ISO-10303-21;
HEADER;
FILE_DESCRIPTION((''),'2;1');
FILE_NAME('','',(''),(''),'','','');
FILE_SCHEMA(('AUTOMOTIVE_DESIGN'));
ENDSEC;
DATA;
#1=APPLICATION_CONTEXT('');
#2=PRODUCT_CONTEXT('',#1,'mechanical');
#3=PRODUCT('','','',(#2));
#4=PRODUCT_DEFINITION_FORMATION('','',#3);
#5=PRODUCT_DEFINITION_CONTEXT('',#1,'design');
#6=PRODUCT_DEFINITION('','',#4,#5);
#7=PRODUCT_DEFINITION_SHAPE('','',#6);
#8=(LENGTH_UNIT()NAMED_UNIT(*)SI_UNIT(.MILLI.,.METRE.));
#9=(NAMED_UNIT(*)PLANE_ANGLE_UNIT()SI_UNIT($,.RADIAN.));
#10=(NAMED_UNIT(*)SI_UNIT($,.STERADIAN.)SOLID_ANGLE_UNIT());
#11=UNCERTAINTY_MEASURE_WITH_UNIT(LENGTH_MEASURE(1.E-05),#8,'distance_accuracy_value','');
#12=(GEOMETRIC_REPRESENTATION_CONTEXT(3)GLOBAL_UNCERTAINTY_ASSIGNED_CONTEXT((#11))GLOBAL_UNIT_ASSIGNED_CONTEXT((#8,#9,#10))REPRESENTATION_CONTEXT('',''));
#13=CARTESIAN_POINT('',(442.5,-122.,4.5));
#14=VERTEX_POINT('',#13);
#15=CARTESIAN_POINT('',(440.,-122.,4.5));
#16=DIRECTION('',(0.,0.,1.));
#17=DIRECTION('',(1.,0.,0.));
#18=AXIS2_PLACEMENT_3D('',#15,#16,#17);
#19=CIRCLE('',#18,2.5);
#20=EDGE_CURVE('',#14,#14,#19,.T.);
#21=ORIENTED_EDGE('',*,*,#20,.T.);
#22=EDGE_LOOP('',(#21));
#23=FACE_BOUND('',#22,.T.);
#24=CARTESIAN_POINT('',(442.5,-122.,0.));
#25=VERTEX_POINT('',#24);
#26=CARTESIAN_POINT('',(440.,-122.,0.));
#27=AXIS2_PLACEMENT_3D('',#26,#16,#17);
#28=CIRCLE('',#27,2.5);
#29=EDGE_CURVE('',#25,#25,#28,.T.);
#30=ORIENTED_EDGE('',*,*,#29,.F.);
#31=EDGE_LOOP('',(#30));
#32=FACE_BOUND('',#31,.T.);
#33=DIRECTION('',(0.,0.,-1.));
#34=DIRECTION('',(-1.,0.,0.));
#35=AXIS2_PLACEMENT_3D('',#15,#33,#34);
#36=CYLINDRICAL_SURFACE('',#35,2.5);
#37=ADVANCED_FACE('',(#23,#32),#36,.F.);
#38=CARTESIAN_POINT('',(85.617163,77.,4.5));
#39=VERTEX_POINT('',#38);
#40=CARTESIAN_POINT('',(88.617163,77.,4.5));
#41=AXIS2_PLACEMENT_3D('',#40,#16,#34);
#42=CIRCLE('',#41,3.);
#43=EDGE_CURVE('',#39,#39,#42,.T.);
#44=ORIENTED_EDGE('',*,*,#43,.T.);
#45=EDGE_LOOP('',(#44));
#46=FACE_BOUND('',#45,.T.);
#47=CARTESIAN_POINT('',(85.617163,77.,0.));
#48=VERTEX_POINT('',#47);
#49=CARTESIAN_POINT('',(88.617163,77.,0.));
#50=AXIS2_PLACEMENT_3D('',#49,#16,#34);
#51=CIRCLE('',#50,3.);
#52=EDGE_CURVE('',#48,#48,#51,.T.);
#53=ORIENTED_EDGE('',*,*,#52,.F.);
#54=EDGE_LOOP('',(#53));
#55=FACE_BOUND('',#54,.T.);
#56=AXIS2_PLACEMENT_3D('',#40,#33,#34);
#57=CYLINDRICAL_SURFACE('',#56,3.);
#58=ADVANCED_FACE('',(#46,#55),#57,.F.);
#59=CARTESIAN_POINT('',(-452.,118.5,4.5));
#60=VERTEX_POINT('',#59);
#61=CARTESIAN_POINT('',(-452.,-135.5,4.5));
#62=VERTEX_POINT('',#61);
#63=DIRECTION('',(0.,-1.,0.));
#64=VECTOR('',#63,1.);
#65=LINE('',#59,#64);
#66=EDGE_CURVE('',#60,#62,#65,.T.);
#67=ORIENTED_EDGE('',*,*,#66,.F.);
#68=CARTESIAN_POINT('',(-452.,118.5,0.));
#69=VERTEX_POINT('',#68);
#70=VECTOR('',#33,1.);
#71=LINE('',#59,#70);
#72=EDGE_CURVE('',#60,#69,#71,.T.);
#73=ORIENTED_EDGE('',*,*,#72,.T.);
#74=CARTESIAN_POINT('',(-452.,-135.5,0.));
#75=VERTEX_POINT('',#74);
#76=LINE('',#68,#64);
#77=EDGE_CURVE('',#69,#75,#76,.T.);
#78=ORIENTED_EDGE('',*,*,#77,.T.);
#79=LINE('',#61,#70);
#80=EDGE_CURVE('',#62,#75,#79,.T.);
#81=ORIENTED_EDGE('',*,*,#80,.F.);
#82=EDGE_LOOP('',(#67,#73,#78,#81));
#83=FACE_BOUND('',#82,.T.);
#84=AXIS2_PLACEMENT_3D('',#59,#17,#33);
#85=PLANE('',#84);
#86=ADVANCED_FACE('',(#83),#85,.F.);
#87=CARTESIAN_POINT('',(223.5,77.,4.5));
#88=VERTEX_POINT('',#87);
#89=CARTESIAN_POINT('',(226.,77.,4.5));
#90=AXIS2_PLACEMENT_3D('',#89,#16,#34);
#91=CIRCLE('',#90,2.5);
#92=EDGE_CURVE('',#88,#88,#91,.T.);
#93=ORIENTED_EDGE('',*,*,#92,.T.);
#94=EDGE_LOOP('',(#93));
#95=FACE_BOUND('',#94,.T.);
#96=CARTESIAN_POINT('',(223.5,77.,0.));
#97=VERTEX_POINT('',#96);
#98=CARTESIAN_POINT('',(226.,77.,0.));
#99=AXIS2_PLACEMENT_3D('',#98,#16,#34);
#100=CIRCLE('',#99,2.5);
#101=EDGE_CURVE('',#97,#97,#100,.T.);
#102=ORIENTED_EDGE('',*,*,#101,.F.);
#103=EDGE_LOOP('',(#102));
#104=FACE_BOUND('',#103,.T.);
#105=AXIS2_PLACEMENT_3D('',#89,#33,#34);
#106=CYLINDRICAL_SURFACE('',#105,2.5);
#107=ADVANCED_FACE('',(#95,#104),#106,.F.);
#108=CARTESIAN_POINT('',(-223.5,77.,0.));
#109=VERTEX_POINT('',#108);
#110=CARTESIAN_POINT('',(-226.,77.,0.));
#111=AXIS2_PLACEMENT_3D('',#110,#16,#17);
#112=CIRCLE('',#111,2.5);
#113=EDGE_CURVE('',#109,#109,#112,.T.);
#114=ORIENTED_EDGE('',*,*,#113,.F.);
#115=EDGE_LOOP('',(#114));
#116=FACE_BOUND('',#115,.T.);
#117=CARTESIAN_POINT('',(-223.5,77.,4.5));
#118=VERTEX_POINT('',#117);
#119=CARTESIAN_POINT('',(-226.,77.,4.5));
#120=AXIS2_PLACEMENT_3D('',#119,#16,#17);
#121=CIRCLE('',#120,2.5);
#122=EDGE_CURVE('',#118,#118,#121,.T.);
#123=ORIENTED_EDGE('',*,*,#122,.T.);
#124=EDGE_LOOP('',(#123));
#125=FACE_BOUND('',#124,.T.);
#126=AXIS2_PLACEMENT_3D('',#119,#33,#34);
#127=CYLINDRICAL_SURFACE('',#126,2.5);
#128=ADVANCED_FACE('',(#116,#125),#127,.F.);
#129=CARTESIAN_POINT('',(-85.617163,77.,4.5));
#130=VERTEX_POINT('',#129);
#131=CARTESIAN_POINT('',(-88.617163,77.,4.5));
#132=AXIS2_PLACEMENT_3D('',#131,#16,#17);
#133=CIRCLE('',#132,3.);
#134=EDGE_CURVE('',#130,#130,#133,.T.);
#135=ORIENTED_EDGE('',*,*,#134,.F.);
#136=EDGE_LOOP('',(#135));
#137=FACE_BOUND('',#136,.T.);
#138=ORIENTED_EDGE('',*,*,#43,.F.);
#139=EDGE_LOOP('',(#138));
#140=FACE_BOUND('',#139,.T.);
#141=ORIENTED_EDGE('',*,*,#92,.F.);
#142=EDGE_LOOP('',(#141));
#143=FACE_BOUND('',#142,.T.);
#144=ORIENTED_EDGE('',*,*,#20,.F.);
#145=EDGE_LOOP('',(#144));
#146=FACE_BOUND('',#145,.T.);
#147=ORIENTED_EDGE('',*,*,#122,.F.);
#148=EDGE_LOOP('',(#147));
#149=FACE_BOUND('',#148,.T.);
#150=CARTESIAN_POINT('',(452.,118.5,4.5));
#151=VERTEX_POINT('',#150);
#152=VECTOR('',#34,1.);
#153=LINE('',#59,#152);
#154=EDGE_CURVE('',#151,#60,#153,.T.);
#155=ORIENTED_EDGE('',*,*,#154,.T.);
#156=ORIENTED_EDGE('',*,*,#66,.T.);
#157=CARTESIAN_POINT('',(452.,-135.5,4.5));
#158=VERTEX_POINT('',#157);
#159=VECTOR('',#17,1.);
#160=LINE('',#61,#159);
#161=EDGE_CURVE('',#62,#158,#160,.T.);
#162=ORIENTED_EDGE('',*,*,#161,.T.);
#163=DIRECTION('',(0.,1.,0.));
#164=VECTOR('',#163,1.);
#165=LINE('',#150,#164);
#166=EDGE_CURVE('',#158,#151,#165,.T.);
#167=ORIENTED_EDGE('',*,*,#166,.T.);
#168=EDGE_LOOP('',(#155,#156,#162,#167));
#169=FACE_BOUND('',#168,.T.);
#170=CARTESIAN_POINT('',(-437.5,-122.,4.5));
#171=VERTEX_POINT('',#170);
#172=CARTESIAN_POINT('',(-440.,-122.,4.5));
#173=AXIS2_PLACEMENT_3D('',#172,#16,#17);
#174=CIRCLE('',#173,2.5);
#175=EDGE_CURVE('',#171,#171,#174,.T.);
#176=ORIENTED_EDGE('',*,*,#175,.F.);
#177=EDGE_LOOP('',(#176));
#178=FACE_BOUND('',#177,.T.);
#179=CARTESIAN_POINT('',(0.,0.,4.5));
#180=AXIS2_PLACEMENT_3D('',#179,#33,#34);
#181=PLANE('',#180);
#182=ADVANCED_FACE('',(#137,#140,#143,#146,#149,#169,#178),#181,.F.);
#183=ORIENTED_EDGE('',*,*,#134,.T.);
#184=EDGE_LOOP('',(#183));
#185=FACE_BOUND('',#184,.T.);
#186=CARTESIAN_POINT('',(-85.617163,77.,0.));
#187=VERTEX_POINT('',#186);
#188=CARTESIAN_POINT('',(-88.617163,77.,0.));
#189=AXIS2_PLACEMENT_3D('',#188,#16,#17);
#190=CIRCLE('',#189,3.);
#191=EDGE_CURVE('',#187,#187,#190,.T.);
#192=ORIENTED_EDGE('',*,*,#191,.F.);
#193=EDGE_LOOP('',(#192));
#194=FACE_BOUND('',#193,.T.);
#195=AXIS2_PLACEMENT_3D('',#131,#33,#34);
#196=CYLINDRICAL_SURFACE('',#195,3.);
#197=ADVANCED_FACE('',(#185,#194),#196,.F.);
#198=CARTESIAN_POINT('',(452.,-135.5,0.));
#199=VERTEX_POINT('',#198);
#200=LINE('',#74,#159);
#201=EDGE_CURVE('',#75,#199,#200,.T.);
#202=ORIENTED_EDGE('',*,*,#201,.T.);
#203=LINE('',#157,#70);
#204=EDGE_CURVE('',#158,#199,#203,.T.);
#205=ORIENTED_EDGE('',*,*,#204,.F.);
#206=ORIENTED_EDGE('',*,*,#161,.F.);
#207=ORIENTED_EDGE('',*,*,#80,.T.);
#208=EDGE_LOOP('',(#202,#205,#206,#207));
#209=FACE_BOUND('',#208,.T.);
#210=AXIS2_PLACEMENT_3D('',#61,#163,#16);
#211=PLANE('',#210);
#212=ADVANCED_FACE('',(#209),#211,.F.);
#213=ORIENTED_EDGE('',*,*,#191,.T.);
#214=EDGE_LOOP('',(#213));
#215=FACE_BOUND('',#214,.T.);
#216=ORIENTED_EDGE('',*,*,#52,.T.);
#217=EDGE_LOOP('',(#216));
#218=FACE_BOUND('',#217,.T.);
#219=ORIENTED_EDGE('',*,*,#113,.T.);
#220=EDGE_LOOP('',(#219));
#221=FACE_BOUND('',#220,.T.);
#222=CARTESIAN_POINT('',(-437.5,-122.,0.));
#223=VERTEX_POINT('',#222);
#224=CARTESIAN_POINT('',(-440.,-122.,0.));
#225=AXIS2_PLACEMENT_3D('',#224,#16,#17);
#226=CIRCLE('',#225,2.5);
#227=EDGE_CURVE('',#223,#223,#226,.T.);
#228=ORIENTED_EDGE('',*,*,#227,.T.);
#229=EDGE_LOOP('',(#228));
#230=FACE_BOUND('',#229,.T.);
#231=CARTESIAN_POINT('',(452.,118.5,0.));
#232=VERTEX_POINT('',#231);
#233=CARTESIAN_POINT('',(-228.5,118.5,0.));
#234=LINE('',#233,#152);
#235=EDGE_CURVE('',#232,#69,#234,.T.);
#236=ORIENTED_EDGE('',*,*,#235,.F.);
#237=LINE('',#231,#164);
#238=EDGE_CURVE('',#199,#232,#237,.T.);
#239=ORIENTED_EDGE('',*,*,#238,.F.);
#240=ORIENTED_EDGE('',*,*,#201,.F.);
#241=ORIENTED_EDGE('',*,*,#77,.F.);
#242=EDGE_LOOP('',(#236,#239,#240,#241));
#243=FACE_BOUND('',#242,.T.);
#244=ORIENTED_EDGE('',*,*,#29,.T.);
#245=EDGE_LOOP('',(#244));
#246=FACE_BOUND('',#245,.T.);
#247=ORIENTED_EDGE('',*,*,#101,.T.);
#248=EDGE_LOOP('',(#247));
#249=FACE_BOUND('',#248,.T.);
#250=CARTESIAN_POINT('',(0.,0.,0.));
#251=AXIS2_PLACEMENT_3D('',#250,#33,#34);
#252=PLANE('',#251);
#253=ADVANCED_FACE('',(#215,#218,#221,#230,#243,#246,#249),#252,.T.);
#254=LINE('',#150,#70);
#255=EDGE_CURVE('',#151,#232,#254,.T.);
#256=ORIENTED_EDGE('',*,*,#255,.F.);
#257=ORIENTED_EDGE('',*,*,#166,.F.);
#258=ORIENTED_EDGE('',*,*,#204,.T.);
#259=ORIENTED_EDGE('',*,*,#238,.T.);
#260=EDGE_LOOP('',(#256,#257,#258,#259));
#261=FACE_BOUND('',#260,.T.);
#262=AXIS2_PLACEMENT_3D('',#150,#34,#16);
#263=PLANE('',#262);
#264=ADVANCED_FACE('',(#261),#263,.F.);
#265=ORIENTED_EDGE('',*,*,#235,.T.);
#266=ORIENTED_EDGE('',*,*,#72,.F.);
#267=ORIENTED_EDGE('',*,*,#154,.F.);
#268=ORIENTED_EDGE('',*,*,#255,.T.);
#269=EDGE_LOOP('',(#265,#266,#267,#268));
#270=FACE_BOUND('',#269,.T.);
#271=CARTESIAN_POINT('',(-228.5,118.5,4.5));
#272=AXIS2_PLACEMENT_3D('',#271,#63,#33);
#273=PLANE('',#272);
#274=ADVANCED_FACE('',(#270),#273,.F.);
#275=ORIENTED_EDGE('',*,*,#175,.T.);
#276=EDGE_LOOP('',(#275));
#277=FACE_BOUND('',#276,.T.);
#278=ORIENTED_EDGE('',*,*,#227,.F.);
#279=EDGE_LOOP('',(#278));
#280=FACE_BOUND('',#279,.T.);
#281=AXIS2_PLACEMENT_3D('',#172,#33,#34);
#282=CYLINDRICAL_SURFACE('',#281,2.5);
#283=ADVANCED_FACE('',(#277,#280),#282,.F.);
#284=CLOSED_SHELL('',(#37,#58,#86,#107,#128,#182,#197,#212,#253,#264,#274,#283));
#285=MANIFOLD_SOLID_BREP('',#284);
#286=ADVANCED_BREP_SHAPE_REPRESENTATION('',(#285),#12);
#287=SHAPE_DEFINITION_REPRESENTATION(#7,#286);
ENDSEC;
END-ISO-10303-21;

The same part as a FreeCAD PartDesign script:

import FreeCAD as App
import Part
import Sketcher

V = App.Vector
Q = App.Units.Quantity


def add_polygon(sketch, points):
    """Adds a closed chain of lines whose ends are joined by coincident constraints."""
    first, n = sketch.GeometryCount, len(points)
    for a, b in zip(points, points[1:] + points[:1]):
        sketch.addGeometry(Part.LineSegment(App.Vector(*a, 0), App.Vector(*b, 0)), False)
    for i in range(n):
        sketch.addConstraint(Sketcher.Constraint("Coincident", first + i, 2, first + (i + 1) % n, 1))

doc = App.newDocument("Part")
body = doc.addObject("PartDesign::Body", "Body")

sketch1 = body.newObject("Sketcher::SketchObject", "Sketch")
sketch1.AttachmentSupport = (doc.getObject("XY_Plane"), [""])
sketch1.MapMode = "FlatFace"
add_polygon(sketch1, [(-452, 118.5), (-452, -135.5), (452, -135.5), (452, 118.5)])
sketch1.addGeometry(Part.Circle(V(-440, -122, 0), V(0, 0, 1), 2.5), False)
sketch1.addGeometry(Part.Circle(V(440, -122, 0), V(0, 0, 1), 2.5), False)
sketch1.addGeometry(Part.Circle(V(-226, 77, 0), V(0, 0, 1), 2.5), False)
sketch1.addGeometry(Part.Circle(V(-88.6, 77, 0), V(0, 0, 1), 3), False)
sketch1.addGeometry(Part.Circle(V(88.6, 77, 0), V(0, 0, 1), 3), False)
sketch1.addGeometry(Part.Circle(V(226, 77, 0), V(0, 0, 1), 2.5), False)
sketch1.addConstraint([
    Sketcher.Constraint("Vertical", 0),
    Sketcher.Constraint("Horizontal", 1),
    Sketcher.Constraint("Vertical", 2),
    Sketcher.Constraint("Horizontal", 3),
    Sketcher.Constraint("Equal", 4, 5),
    Sketcher.Constraint("Equal", 5, 6),
    Sketcher.Constraint("Equal", 7, 8),
    Sketcher.Constraint("Equal", 6, 9),
    Sketcher.Constraint("Symmetric", 4, 3, 5, 3, -2),
    Sketcher.Constraint("Symmetric", 7, 3, 8, 3, -2),
    Sketcher.Constraint("Symmetric", 6, 3, 9, 3, -2),
    Sketcher.Constraint("Horizontal", 6, 3, 7, 3),
    Sketcher.Constraint("Diameter", 4, Q("5 mm")),
    Sketcher.Constraint("Diameter", 7, Q("6 mm")),
    Sketcher.Constraint("DistanceX", 1, 1, 1, 2, Q("904 mm")),
    Sketcher.Constraint("DistanceY", 0, 2, 0, 1, Q("254 mm")),
    Sketcher.Constraint("DistanceX", 4, 3, -1, 1, Q("440 mm")),
    Sketcher.Constraint("DistanceY", 4, 3, -1, 1, Q("122 mm")),
    Sketcher.Constraint("DistanceX", 6, 3, -1, 1, Q("226 mm")),
    Sketcher.Constraint("DistanceY", -1, 1, 6, 3, Q("77 mm")),
    Sketcher.Constraint("DistanceX", 0, 2, -1, 1, Q("452 mm")),
    Sketcher.Constraint("DistanceY", 0, 2, -1, 1, Q("135.5 mm")),
    Sketcher.Constraint("DistanceX", 7, 3, -1, 1, Q("88.617163 mm")),
])
pad1 = body.newObject("PartDesign::Pad", "Pad")
pad1.Profile = sketch1
pad1.Length = 4.5

doc.recompute()
